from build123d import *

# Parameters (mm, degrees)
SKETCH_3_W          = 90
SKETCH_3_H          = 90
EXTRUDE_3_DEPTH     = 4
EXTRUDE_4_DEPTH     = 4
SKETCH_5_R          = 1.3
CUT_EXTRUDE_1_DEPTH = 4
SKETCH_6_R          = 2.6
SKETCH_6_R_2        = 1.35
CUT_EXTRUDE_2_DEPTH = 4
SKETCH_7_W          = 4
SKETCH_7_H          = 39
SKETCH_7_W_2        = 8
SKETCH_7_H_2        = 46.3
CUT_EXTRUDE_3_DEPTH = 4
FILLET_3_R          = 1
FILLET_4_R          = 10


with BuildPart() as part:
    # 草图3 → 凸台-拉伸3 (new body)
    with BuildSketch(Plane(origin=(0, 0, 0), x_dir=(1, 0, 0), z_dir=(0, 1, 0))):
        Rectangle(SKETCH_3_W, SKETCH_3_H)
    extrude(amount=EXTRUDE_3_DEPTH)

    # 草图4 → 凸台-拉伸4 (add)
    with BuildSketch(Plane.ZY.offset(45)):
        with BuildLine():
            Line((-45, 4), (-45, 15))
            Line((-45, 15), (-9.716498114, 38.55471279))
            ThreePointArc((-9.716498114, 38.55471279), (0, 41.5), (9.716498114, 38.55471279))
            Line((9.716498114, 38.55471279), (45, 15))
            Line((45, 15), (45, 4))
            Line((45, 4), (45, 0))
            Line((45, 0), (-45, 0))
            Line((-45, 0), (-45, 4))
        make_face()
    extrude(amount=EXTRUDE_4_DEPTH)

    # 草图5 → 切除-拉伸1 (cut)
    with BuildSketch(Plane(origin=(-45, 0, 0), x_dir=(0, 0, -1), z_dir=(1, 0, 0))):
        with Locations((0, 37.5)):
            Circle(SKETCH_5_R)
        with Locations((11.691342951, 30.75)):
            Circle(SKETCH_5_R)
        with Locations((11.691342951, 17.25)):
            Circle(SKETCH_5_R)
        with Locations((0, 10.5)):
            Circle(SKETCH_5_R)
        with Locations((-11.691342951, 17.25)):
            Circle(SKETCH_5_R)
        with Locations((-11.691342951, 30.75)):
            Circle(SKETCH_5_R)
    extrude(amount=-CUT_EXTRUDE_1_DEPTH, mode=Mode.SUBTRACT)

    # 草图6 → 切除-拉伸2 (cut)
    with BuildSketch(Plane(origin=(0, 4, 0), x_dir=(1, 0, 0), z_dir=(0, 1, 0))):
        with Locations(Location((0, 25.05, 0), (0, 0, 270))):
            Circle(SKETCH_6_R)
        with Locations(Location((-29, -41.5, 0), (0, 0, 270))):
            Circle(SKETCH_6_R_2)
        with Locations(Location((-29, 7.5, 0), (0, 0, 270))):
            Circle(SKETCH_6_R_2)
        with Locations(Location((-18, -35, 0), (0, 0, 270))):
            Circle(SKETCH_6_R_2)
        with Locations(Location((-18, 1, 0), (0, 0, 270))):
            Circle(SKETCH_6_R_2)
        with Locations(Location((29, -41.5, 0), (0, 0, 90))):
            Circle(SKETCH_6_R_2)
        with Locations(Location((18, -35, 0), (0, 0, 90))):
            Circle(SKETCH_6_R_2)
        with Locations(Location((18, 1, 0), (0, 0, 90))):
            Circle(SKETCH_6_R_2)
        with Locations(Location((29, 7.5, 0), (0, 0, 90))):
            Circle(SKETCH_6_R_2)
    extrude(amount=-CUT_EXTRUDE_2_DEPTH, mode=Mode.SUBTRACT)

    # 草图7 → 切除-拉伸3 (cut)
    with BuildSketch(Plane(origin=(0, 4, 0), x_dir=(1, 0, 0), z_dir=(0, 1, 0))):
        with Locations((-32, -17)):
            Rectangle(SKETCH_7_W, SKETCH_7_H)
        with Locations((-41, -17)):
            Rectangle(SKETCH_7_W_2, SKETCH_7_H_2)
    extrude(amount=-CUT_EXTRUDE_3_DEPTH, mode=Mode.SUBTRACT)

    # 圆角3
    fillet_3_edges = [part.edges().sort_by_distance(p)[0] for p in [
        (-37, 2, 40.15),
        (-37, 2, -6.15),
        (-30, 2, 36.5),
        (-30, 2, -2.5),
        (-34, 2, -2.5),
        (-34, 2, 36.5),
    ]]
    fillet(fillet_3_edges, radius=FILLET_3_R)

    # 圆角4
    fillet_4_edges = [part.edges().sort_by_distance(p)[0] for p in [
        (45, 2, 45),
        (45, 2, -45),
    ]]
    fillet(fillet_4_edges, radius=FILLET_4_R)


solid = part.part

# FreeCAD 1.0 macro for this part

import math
import FreeCAD as App
import Part
import Sketcher
Q = App.Units.Quantity


def edges_at(feature, points):
    """Names of the edges that pass closest to the given points."""
    edges = feature.Shape.Edges
    near = lambda p: min(range(len(edges)), key=lambda i: edges[i].distToShape(Part.Vertex(*p))[0])
    return sorted({f"Edge{near(p) + 1}" for p in points})

doc = App.newDocument("Part")
body = doc.addObject("PartDesign::Body", "Body")

# Sketch on XZ plane
sketch1 = body.newObject("Sketcher::SketchObject", "Sketch")
sketch1.AttachmentSupport = (doc.getObject("XZ_Plane"), [""])
sketch1.MapMode = "FlatFace"
sketch1.addGeometry([
    Part.LineSegment(App.Vector(-45, -45, 0), App.Vector(-45, 45, 0)),
    Part.LineSegment(App.Vector(-45, 45, 0), App.Vector(45, 45, 0)),
    Part.LineSegment(App.Vector(45, 45, 0), App.Vector(45, -45, 0)),
    Part.LineSegment(App.Vector(45, -45, 0), App.Vector(-45, -45, 0)),
], False)
sketch1.addConstraint([
    Sketcher.Constraint("Coincident", 0, 2, 1, 1),
    Sketcher.Constraint("Coincident", 1, 2, 2, 1),
    Sketcher.Constraint("Coincident", 2, 2, 3, 1),
    Sketcher.Constraint("Coincident", 3, 2, 0, 1),
    Sketcher.Constraint("Vertical", 0),
    Sketcher.Constraint("Horizontal", 1),
    Sketcher.Constraint("Vertical", 2),
    Sketcher.Constraint("Horizontal", 3),
    Sketcher.Constraint("Symmetric", 0, 2, 2, 2, -1, 1),
    Sketcher.Constraint("Equal", 3, 0),
    Sketcher.Constraint("DistanceX", 1, 1, 1, 2, Q("90 mm")),
])
pad1 = body.newObject("PartDesign::Pad", "Pad")
pad1.Profile = sketch1
pad1.Length = 4
pad1.Reversed = True

# Sketch on YZ plane
sketch2 = body.newObject("Sketcher::SketchObject", "Sketch001")
sketch2.AttachmentSupport = (doc.getObject("YZ_Plane"), [""])
sketch2.MapMode = "FlatFace"
sketch2.AttachmentOffset = App.Placement(App.Vector(0, 0, -45), App.Rotation())
sketch2.addGeometry([
    Part.LineSegment(App.Vector(39, -10, 0), App.Vector(15, -45, 0)),  # 0
    Part.LineSegment(App.Vector(15, -45, 0), App.Vector(0, -45, 0)),  # 1
    Part.LineSegment(App.Vector(0, -45, 0), App.Vector(0, 45, 0)),  # 2
    Part.LineSegment(App.Vector(0, 45, 0), App.Vector(15, 45, 0)),  # 3
    Part.LineSegment(App.Vector(15, 45, 0), App.Vector(39, 10, 0)),  # 4
    Part.ArcOfCircle(Part.Circle(App.Vector(24, 0, 0), App.Vector(0, 0, 1), 18), math.radians(-34), math.radians(34)),  # 5
], False)
sketch2.addConstraint([
    Sketcher.Constraint("Coincident", 0, 2, 1, 1),
    Sketcher.Constraint("Coincident", 1, 2, 2, 1),
    Sketcher.Constraint("Coincident", 2, 2, 3, 1),
    Sketcher.Constraint("Coincident", 3, 2, 4, 1),
    Sketcher.Constraint("Tangent", 4, 2, 5, 2),
    Sketcher.Constraint("Tangent", 5, 1, 0, 1),
    Sketcher.Constraint("Horizontal", 1),
    Sketcher.Constraint("Vertical", 2),
    Sketcher.Constraint("Horizontal", 3),
    Sketcher.Constraint("Symmetric", 1, 2, 2, 2, -1, 1),
    Sketcher.Constraint("Symmetric", 4, 2, 5, 1, -1),
    Sketcher.Constraint("Radius", 5, Q("17.5 mm")),
    Sketcher.Constraint("DistanceX", 1, 2, 1, 1, Q("15 mm")),
    Sketcher.Constraint("DistanceY", 2, 1, 2, 2, Q("90 mm")),
    Sketcher.Constraint("DistanceX", -1, 1, 5, 3, Q("24 mm")),
])
pad2 = body.newObject("PartDesign::Pad", "Pad001")
pad2.Profile = sketch2
pad2.Length = 4
pad2.Reversed = True

# Sketch on YZ plane
sketch3 = body.newObject("Sketcher::SketchObject", "Sketch002")
sketch3.AttachmentSupport = (doc.getObject("YZ_Plane"), [""])
sketch3.MapMode = "FlatFace"
sketch3.AttachmentOffset = App.Placement(App.Vector(0, 0, -45), App.Rotation())
sketch3.addGeometry([
    Part.Circle(App.Vector(37.5, 0, 0), App.Vector(0, 0, 1), 1.3),  # 0
    Part.Circle(App.Vector(30.8, -11.7, 0), App.Vector(0, 0, 1), 1.3),  # 1
    Part.Circle(App.Vector(17.2, -11.7, 0), App.Vector(0, 0, 1), 1.3),  # 2
    Part.Circle(App.Vector(10.5, 0, 0), App.Vector(0, 0, 1), 1.3),  # 3
    Part.Circle(App.Vector(17.2, 11.7, 0), App.Vector(0, 0, 1), 1.3),  # 4
    Part.Circle(App.Vector(30.8, 11.7, 0), App.Vector(0, 0, 1), 1.3),  # 5
], False)
sketch3.addConstraint([
    Sketcher.Constraint("Equal", 0, 1),
    Sketcher.Constraint("Equal", 1, 2),
    Sketcher.Constraint("Equal", 2, 3),
    Sketcher.Constraint("Equal", 3, 4),
    Sketcher.Constraint("Equal", 4, 5),
    Sketcher.Constraint("Symmetric", 2, 3, 4, 3, -1),
    Sketcher.Constraint("Symmetric", 1, 3, 5, 3, -1),
    Sketcher.Constraint("PointOnObject", 0, 3, -1),
    Sketcher.Constraint("PointOnObject", 3, 3, -1),
    Sketcher.Constraint("Horizontal", 1, 3, 2, 3),
    Sketcher.Constraint("Diameter", 0, Q("2.6 mm")),
    Sketcher.Constraint("DistanceX", 3, 3, 0, 3, Q("27 mm")),
    Sketcher.Constraint("DistanceX", -1, 1, 0, 3, Q("37.5 mm")),
    Sketcher.Constraint("DistanceX", 2, 3, 1, 3, Q("13.5 mm")),
    Sketcher.Constraint("DistanceX", -1, 1, 1, 3, Q("30.75 mm")),
    Sketcher.Constraint("DistanceY", 1, 3, -1, 1, Q("11.691343 mm")),
])
pocket1 = body.newObject("PartDesign::Pocket", "Pocket")
pocket1.Profile = sketch3
pocket1.Length = 4

# Sketch on XZ plane
sketch4 = body.newObject("Sketcher::SketchObject", "Sketch003")
sketch4.AttachmentSupport = (doc.getObject("XZ_Plane"), [""])
sketch4.MapMode = "FlatFace"
sketch4.AttachmentOffset = App.Placement(App.Vector(0, 0, -4), App.Rotation())
sketch4.addGeometry([
    Part.Circle(App.Vector(0, -25.1, 0), App.Vector(0, 0, 1), 2.6),  # 0
    Part.Circle(App.Vector(-29, 41.5, 0), App.Vector(0, 0, 1), 1.4),  # 1
    Part.Circle(App.Vector(-29, -7.5, 0), App.Vector(0, 0, 1), 1.4),  # 2
    Part.Circle(App.Vector(-18, 35, 0), App.Vector(0, 0, 1), 1.4),  # 3
    Part.Circle(App.Vector(-18, -1, 0), App.Vector(0, 0, 1), 1.4),  # 4
    Part.Circle(App.Vector(29, 41.5, 0), App.Vector(0, 0, 1), 1.4),  # 5
    Part.Circle(App.Vector(18, 35, 0), App.Vector(0, 0, 1), 1.4),  # 6
    Part.Circle(App.Vector(18, -1, 0), App.Vector(0, 0, 1), 1.4),  # 7
    Part.Circle(App.Vector(29, -7.5, 0), App.Vector(0, 0, 1), 1.4),  # 8
], False)
sketch4.addConstraint([
    Sketcher.Constraint("Equal", 1, 2),
    Sketcher.Constraint("Equal", 2, 3),
    Sketcher.Constraint("Equal", 3, 4),
    Sketcher.Constraint("Equal", 4, 5),
    Sketcher.Constraint("Equal", 5, 6),
    Sketcher.Constraint("Equal", 6, 7),
    Sketcher.Constraint("Equal", 7, 8),
    Sketcher.Constraint("Symmetric", 1, 3, 5, 3, -2),
    Sketcher.Constraint("Symmetric", 3, 3, 6, 3, -2),
    Sketcher.Constraint("Symmetric", 4, 3, 7, 3, -2),
    Sketcher.Constraint("Symmetric", 2, 3, 8, 3, -2),
    Sketcher.Constraint("PointOnObject", 0, 3, -2),
    Sketcher.Constraint("Vertical", 1, 3, 2, 3),
    Sketcher.Constraint("Vertical", 3, 3, 4, 3),
    Sketcher.Constraint("Diameter", 0, Q("5.2 mm")),
    Sketcher.Constraint("Diameter", 1, Q("2.7 mm")),
    Sketcher.Constraint("DistanceX", 1, 3, -1, 1, Q("29 mm")),
    Sketcher.Constraint("DistanceX", 3, 3, -1, 1, Q("18 mm")),
    Sketcher.Constraint("DistanceY", -1, 1, 3, 3, Q("35 mm")),
    Sketcher.Constraint("DistanceY", 4, 3, -1, 1, Q("1 mm")),
    Sketcher.Constraint("DistanceY", 2, 3, 1, 3, Q("49 mm")),
    Sketcher.Constraint("DistanceY", -1, 1, 1, 3, Q("41.5 mm")),
    Sketcher.Constraint("DistanceY", 0, 3, -1, 1, Q("25.05 mm")),
])
pocket2 = body.newObject("PartDesign::Pocket", "Pocket001")
pocket2.Profile = sketch4
pocket2.Length = 4
pocket2.Reversed = True

# Sketch on XZ plane
sketch5 = body.newObject("Sketcher::SketchObject", "Sketch004")
sketch5.AttachmentSupport = (doc.getObject("XZ_Plane"), [""])
sketch5.MapMode = "FlatFace"
sketch5.AttachmentOffset = App.Placement(App.Vector(0, 0, -4), App.Rotation())
sketch5.addGeometry([
    Part.LineSegment(App.Vector(-34, -2.5, 0), App.Vector(-34, 36.5, 0)),  # 0
    Part.LineSegment(App.Vector(-34, 36.5, 0), App.Vector(-30, 36.5, 0)),  # 1
    Part.LineSegment(App.Vector(-30, 36.5, 0), App.Vector(-30, -2.5, 0)),  # 2
    Part.LineSegment(App.Vector(-30, -2.5, 0), App.Vector(-34, -2.5, 0)),  # 3
    Part.LineSegment(App.Vector(-45, -6.2, 0), App.Vector(-45, 40.1, 0)),  # 4
    Part.LineSegment(App.Vector(-45, 40.1, 0), App.Vector(-37, 40.1, 0)),  # 5
    Part.LineSegment(App.Vector(-37, 40.1, 0), App.Vector(-37, -6.2, 0)),  # 6
    Part.LineSegment(App.Vector(-37, -6.2, 0), App.Vector(-45, -6.2, 0)),  # 7
], False)
sketch5.addConstraint([
    Sketcher.Constraint("Coincident", 0, 2, 1, 1),
    Sketcher.Constraint("Coincident", 1, 2, 2, 1),
    Sketcher.Constraint("Coincident", 2, 2, 3, 1),
    Sketcher.Constraint("Coincident", 3, 2, 0, 1),
    Sketcher.Constraint("Coincident", 4, 2, 5, 1),
    Sketcher.Constraint("Coincident", 5, 2, 6, 1),
    Sketcher.Constraint("Coincident", 6, 2, 7, 1),
    Sketcher.Constraint("Coincident", 7, 2, 4, 1),
    Sketcher.Constraint("Vertical", 0),
    Sketcher.Constraint("Horizontal", 1),
    Sketcher.Constraint("Vertical", 2),
    Sketcher.Constraint("Horizontal", 3),
    Sketcher.Constraint("Vertical", 4),
    Sketcher.Constraint("Horizontal", 5),
    Sketcher.Constraint("Vertical", 6),
    Sketcher.Constraint("Horizontal", 7),
    Sketcher.Constraint("DistanceX", 1, 1, 1, 2, Q("4 mm")),
    Sketcher.Constraint("DistanceX", 5, 1, 5, 2, Q("8 mm")),
    Sketcher.Constraint("DistanceY", 0, 1, 0, 2, Q("39 mm")),
    Sketcher.Constraint("DistanceY", 4, 1, 4, 2, Q("46.3 mm")),
    Sketcher.Constraint("DistanceX", 0, 2, -1, 1, Q("34 mm")),
    Sketcher.Constraint("DistanceX", 4, 2, -1, 1, Q("45 mm")),
    Sketcher.Constraint("DistanceY", -1, 1, 0, 2, Q("36.5 mm")),
    Sketcher.Constraint("DistanceY", -1, 1, 4, 2, Q("40.15 mm")),
])
pocket3 = body.newObject("PartDesign::Pocket", "Pocket002")
pocket3.Profile = sketch5
pocket3.Length = 4
pocket3.Reversed = True
doc.recompute()

fillet = body.newObject("PartDesign::Fillet", "Fillet")
fillet.Base = (pocket3, edges_at(pocket3, [
    (-37, 2, 40.15),
    (-37, 2, -6.15),
    (-30, 2, 36.5),
    (-30, 2, -2.5),
    (-34, 2, -2.5),
    (-34, 2, 36.5),
]))
fillet.Radius = 1
doc.recompute()

fillet2 = body.newObject("PartDesign::Fillet", "Fillet001")
fillet2.Base = (fillet, edges_at(fillet, [(45, 2, 45), (45, 2, -45)]))
fillet2.Radius = 10

doc.recompute()
